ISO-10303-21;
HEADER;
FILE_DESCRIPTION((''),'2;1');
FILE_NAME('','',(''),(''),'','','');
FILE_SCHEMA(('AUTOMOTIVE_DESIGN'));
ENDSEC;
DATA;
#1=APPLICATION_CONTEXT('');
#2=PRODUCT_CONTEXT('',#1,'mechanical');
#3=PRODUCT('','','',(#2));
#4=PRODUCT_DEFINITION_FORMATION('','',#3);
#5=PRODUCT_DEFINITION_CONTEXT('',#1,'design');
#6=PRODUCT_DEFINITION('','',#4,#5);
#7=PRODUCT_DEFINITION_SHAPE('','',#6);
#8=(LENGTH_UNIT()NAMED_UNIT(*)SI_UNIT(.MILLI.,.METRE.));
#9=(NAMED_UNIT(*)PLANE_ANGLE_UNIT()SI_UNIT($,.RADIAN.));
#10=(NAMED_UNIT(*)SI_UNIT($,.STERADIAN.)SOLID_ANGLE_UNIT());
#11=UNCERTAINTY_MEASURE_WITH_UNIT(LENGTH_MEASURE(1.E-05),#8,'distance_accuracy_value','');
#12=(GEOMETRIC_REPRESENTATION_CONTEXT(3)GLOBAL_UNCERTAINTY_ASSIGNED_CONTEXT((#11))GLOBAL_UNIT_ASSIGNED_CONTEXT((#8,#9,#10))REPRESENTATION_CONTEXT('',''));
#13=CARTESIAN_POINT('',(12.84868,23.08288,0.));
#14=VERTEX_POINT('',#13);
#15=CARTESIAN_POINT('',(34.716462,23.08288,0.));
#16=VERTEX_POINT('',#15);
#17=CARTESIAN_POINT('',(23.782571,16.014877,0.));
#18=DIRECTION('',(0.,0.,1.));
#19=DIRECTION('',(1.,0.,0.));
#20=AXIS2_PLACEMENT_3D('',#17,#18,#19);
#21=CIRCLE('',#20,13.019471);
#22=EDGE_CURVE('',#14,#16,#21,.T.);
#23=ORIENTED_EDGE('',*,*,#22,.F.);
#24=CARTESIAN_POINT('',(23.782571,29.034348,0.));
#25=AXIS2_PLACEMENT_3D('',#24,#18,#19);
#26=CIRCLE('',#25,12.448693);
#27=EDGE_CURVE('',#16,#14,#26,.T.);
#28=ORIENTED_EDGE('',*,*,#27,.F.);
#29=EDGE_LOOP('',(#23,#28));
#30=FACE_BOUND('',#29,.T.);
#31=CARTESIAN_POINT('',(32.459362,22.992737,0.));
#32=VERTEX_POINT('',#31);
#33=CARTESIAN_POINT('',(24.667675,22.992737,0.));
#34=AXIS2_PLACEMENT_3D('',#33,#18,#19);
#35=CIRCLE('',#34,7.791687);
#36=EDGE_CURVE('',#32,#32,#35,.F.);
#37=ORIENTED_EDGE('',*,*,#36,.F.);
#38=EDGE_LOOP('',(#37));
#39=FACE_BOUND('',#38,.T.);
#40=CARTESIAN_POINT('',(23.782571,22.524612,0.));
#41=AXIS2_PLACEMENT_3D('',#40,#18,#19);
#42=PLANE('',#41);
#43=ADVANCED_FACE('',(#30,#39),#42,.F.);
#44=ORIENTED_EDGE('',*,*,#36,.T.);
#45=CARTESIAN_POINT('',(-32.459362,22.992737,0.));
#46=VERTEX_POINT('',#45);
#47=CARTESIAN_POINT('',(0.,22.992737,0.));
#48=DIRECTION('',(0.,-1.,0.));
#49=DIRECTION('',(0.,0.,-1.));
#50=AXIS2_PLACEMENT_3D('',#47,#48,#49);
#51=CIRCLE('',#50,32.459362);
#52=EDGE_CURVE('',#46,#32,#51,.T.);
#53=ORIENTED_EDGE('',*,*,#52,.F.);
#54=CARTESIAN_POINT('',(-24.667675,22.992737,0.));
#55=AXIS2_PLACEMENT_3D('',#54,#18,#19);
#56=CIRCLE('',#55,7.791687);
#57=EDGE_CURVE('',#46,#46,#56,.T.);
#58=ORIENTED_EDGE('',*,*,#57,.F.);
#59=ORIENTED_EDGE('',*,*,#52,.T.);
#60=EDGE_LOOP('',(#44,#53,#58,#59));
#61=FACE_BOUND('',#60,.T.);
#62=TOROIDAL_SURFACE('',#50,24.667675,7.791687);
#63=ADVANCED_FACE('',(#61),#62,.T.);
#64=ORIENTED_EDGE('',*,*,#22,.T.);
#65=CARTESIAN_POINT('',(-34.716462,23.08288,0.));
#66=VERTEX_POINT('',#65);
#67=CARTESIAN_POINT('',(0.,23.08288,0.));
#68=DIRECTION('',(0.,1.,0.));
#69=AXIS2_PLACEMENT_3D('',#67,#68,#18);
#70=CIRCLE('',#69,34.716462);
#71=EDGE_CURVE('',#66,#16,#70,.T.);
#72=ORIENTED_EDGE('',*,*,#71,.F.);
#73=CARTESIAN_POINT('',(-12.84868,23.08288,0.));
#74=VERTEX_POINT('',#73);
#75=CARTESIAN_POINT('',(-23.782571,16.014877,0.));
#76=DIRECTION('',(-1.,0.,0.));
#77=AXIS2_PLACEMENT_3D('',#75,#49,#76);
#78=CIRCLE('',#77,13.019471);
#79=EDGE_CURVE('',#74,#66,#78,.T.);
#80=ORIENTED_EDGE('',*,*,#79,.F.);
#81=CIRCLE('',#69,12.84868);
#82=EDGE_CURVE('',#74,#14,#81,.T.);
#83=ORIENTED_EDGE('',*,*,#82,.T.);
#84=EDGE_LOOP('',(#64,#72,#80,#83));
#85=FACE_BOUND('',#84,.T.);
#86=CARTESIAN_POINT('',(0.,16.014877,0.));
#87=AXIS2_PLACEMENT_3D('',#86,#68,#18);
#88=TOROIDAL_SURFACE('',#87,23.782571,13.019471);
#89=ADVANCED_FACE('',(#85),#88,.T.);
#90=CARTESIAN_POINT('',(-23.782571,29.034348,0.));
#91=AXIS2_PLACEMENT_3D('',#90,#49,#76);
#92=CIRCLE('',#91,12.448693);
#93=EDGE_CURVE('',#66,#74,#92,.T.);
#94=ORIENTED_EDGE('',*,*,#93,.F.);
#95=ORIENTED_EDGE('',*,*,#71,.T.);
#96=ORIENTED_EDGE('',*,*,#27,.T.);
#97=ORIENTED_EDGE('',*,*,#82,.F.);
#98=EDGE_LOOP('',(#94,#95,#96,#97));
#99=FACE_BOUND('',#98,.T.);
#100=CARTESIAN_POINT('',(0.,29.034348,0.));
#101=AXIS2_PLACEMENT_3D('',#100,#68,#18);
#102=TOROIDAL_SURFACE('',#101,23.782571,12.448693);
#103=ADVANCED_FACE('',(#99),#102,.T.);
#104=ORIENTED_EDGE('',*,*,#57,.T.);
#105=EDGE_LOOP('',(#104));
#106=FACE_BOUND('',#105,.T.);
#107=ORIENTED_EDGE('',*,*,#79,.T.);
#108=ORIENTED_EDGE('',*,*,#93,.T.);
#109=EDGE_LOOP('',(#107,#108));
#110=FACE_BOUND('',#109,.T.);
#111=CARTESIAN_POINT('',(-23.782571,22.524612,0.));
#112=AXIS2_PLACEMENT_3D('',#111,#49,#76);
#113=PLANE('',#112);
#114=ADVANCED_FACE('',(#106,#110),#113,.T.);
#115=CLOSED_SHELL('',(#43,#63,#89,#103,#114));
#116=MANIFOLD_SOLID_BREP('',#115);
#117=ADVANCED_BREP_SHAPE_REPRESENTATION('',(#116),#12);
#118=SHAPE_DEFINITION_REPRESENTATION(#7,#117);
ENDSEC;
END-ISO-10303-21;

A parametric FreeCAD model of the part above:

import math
import FreeCAD as App
import Part
import Sketcher

doc = App.newDocument("Part")
body = doc.addObject("PartDesign::Body", "Body")

sketch1 = body.newObject("Sketcher::SketchObject", "Sketch")
sketch1.AttachmentSupport = (doc.getObject("XY_Plane"), [""])
sketch1.MapMode = "FlatFace"
sketch1.addGeometry([
    Part.ArcOfCircle(Part.Circle(App.Vector(24, 16, 0), App.Vector(0, 0, 1), 13), math.radians(147), math.radians(393)),
    Part.ArcOfCircle(Part.Circle(App.Vector(24, 29, 0), App.Vector(0, 0, 1), 12), math.radians(-29), math.radians(209)),
], False)
sketch1.addConstraint([
    Sketcher.Constraint("Coincident", 0, 1, 1, 2),
    Sketcher.Constraint("Coincident", 1, 1, 0, 2),
    Sketcher.Constraint("Horizontal", 0, 1, 1, 1),
    Sketcher.Constraint("Radius", 0, 13.019471),
    Sketcher.Constraint("Radius", 1, 12.448693),
    Sketcher.Constraint("DistanceX", -1, 1, 0, 3, 23.782571),
    Sketcher.Constraint("DistanceY", -1, 1, 1, 3, 29.034348),
    Sketcher.Constraint("DistanceX", -1, 1, 0, 1, 12.84868),
])
revolution = body.newObject("PartDesign::Revolution", "Revolution")
revolution.Profile = sketch1
revolution.ReferenceAxis = (sketch1, ["V_Axis"])
revolution.Angle = 180
revolution.Reversed = True

sketch2 = body.newObject("Sketcher::SketchObject", "Sketch001")
sketch2.AttachmentSupport = (doc.getObject("XY_Plane"), [""])
sketch2.MapMode = "FlatFace"
sketch2.addGeometry(Part.Circle(App.Vector(25, 23, 0), App.Vector(0, 0, 1), 8), False)
sketch2.addConstraint([
    Sketcher.Constraint("Diameter", 0, 15.583374),
    Sketcher.Constraint("DistanceX", -1, 1, 0, 3, 24.667675),
    Sketcher.Constraint("DistanceY", -1, 1, 0, 3, 22.992737),
])
revolution2 = body.newObject("PartDesign::Revolution", "Revolution001")
revolution2.Profile = sketch2
revolution2.ReferenceAxis = (sketch2, ["V_Axis"])
revolution2.Angle = 180

doc.recompute()
